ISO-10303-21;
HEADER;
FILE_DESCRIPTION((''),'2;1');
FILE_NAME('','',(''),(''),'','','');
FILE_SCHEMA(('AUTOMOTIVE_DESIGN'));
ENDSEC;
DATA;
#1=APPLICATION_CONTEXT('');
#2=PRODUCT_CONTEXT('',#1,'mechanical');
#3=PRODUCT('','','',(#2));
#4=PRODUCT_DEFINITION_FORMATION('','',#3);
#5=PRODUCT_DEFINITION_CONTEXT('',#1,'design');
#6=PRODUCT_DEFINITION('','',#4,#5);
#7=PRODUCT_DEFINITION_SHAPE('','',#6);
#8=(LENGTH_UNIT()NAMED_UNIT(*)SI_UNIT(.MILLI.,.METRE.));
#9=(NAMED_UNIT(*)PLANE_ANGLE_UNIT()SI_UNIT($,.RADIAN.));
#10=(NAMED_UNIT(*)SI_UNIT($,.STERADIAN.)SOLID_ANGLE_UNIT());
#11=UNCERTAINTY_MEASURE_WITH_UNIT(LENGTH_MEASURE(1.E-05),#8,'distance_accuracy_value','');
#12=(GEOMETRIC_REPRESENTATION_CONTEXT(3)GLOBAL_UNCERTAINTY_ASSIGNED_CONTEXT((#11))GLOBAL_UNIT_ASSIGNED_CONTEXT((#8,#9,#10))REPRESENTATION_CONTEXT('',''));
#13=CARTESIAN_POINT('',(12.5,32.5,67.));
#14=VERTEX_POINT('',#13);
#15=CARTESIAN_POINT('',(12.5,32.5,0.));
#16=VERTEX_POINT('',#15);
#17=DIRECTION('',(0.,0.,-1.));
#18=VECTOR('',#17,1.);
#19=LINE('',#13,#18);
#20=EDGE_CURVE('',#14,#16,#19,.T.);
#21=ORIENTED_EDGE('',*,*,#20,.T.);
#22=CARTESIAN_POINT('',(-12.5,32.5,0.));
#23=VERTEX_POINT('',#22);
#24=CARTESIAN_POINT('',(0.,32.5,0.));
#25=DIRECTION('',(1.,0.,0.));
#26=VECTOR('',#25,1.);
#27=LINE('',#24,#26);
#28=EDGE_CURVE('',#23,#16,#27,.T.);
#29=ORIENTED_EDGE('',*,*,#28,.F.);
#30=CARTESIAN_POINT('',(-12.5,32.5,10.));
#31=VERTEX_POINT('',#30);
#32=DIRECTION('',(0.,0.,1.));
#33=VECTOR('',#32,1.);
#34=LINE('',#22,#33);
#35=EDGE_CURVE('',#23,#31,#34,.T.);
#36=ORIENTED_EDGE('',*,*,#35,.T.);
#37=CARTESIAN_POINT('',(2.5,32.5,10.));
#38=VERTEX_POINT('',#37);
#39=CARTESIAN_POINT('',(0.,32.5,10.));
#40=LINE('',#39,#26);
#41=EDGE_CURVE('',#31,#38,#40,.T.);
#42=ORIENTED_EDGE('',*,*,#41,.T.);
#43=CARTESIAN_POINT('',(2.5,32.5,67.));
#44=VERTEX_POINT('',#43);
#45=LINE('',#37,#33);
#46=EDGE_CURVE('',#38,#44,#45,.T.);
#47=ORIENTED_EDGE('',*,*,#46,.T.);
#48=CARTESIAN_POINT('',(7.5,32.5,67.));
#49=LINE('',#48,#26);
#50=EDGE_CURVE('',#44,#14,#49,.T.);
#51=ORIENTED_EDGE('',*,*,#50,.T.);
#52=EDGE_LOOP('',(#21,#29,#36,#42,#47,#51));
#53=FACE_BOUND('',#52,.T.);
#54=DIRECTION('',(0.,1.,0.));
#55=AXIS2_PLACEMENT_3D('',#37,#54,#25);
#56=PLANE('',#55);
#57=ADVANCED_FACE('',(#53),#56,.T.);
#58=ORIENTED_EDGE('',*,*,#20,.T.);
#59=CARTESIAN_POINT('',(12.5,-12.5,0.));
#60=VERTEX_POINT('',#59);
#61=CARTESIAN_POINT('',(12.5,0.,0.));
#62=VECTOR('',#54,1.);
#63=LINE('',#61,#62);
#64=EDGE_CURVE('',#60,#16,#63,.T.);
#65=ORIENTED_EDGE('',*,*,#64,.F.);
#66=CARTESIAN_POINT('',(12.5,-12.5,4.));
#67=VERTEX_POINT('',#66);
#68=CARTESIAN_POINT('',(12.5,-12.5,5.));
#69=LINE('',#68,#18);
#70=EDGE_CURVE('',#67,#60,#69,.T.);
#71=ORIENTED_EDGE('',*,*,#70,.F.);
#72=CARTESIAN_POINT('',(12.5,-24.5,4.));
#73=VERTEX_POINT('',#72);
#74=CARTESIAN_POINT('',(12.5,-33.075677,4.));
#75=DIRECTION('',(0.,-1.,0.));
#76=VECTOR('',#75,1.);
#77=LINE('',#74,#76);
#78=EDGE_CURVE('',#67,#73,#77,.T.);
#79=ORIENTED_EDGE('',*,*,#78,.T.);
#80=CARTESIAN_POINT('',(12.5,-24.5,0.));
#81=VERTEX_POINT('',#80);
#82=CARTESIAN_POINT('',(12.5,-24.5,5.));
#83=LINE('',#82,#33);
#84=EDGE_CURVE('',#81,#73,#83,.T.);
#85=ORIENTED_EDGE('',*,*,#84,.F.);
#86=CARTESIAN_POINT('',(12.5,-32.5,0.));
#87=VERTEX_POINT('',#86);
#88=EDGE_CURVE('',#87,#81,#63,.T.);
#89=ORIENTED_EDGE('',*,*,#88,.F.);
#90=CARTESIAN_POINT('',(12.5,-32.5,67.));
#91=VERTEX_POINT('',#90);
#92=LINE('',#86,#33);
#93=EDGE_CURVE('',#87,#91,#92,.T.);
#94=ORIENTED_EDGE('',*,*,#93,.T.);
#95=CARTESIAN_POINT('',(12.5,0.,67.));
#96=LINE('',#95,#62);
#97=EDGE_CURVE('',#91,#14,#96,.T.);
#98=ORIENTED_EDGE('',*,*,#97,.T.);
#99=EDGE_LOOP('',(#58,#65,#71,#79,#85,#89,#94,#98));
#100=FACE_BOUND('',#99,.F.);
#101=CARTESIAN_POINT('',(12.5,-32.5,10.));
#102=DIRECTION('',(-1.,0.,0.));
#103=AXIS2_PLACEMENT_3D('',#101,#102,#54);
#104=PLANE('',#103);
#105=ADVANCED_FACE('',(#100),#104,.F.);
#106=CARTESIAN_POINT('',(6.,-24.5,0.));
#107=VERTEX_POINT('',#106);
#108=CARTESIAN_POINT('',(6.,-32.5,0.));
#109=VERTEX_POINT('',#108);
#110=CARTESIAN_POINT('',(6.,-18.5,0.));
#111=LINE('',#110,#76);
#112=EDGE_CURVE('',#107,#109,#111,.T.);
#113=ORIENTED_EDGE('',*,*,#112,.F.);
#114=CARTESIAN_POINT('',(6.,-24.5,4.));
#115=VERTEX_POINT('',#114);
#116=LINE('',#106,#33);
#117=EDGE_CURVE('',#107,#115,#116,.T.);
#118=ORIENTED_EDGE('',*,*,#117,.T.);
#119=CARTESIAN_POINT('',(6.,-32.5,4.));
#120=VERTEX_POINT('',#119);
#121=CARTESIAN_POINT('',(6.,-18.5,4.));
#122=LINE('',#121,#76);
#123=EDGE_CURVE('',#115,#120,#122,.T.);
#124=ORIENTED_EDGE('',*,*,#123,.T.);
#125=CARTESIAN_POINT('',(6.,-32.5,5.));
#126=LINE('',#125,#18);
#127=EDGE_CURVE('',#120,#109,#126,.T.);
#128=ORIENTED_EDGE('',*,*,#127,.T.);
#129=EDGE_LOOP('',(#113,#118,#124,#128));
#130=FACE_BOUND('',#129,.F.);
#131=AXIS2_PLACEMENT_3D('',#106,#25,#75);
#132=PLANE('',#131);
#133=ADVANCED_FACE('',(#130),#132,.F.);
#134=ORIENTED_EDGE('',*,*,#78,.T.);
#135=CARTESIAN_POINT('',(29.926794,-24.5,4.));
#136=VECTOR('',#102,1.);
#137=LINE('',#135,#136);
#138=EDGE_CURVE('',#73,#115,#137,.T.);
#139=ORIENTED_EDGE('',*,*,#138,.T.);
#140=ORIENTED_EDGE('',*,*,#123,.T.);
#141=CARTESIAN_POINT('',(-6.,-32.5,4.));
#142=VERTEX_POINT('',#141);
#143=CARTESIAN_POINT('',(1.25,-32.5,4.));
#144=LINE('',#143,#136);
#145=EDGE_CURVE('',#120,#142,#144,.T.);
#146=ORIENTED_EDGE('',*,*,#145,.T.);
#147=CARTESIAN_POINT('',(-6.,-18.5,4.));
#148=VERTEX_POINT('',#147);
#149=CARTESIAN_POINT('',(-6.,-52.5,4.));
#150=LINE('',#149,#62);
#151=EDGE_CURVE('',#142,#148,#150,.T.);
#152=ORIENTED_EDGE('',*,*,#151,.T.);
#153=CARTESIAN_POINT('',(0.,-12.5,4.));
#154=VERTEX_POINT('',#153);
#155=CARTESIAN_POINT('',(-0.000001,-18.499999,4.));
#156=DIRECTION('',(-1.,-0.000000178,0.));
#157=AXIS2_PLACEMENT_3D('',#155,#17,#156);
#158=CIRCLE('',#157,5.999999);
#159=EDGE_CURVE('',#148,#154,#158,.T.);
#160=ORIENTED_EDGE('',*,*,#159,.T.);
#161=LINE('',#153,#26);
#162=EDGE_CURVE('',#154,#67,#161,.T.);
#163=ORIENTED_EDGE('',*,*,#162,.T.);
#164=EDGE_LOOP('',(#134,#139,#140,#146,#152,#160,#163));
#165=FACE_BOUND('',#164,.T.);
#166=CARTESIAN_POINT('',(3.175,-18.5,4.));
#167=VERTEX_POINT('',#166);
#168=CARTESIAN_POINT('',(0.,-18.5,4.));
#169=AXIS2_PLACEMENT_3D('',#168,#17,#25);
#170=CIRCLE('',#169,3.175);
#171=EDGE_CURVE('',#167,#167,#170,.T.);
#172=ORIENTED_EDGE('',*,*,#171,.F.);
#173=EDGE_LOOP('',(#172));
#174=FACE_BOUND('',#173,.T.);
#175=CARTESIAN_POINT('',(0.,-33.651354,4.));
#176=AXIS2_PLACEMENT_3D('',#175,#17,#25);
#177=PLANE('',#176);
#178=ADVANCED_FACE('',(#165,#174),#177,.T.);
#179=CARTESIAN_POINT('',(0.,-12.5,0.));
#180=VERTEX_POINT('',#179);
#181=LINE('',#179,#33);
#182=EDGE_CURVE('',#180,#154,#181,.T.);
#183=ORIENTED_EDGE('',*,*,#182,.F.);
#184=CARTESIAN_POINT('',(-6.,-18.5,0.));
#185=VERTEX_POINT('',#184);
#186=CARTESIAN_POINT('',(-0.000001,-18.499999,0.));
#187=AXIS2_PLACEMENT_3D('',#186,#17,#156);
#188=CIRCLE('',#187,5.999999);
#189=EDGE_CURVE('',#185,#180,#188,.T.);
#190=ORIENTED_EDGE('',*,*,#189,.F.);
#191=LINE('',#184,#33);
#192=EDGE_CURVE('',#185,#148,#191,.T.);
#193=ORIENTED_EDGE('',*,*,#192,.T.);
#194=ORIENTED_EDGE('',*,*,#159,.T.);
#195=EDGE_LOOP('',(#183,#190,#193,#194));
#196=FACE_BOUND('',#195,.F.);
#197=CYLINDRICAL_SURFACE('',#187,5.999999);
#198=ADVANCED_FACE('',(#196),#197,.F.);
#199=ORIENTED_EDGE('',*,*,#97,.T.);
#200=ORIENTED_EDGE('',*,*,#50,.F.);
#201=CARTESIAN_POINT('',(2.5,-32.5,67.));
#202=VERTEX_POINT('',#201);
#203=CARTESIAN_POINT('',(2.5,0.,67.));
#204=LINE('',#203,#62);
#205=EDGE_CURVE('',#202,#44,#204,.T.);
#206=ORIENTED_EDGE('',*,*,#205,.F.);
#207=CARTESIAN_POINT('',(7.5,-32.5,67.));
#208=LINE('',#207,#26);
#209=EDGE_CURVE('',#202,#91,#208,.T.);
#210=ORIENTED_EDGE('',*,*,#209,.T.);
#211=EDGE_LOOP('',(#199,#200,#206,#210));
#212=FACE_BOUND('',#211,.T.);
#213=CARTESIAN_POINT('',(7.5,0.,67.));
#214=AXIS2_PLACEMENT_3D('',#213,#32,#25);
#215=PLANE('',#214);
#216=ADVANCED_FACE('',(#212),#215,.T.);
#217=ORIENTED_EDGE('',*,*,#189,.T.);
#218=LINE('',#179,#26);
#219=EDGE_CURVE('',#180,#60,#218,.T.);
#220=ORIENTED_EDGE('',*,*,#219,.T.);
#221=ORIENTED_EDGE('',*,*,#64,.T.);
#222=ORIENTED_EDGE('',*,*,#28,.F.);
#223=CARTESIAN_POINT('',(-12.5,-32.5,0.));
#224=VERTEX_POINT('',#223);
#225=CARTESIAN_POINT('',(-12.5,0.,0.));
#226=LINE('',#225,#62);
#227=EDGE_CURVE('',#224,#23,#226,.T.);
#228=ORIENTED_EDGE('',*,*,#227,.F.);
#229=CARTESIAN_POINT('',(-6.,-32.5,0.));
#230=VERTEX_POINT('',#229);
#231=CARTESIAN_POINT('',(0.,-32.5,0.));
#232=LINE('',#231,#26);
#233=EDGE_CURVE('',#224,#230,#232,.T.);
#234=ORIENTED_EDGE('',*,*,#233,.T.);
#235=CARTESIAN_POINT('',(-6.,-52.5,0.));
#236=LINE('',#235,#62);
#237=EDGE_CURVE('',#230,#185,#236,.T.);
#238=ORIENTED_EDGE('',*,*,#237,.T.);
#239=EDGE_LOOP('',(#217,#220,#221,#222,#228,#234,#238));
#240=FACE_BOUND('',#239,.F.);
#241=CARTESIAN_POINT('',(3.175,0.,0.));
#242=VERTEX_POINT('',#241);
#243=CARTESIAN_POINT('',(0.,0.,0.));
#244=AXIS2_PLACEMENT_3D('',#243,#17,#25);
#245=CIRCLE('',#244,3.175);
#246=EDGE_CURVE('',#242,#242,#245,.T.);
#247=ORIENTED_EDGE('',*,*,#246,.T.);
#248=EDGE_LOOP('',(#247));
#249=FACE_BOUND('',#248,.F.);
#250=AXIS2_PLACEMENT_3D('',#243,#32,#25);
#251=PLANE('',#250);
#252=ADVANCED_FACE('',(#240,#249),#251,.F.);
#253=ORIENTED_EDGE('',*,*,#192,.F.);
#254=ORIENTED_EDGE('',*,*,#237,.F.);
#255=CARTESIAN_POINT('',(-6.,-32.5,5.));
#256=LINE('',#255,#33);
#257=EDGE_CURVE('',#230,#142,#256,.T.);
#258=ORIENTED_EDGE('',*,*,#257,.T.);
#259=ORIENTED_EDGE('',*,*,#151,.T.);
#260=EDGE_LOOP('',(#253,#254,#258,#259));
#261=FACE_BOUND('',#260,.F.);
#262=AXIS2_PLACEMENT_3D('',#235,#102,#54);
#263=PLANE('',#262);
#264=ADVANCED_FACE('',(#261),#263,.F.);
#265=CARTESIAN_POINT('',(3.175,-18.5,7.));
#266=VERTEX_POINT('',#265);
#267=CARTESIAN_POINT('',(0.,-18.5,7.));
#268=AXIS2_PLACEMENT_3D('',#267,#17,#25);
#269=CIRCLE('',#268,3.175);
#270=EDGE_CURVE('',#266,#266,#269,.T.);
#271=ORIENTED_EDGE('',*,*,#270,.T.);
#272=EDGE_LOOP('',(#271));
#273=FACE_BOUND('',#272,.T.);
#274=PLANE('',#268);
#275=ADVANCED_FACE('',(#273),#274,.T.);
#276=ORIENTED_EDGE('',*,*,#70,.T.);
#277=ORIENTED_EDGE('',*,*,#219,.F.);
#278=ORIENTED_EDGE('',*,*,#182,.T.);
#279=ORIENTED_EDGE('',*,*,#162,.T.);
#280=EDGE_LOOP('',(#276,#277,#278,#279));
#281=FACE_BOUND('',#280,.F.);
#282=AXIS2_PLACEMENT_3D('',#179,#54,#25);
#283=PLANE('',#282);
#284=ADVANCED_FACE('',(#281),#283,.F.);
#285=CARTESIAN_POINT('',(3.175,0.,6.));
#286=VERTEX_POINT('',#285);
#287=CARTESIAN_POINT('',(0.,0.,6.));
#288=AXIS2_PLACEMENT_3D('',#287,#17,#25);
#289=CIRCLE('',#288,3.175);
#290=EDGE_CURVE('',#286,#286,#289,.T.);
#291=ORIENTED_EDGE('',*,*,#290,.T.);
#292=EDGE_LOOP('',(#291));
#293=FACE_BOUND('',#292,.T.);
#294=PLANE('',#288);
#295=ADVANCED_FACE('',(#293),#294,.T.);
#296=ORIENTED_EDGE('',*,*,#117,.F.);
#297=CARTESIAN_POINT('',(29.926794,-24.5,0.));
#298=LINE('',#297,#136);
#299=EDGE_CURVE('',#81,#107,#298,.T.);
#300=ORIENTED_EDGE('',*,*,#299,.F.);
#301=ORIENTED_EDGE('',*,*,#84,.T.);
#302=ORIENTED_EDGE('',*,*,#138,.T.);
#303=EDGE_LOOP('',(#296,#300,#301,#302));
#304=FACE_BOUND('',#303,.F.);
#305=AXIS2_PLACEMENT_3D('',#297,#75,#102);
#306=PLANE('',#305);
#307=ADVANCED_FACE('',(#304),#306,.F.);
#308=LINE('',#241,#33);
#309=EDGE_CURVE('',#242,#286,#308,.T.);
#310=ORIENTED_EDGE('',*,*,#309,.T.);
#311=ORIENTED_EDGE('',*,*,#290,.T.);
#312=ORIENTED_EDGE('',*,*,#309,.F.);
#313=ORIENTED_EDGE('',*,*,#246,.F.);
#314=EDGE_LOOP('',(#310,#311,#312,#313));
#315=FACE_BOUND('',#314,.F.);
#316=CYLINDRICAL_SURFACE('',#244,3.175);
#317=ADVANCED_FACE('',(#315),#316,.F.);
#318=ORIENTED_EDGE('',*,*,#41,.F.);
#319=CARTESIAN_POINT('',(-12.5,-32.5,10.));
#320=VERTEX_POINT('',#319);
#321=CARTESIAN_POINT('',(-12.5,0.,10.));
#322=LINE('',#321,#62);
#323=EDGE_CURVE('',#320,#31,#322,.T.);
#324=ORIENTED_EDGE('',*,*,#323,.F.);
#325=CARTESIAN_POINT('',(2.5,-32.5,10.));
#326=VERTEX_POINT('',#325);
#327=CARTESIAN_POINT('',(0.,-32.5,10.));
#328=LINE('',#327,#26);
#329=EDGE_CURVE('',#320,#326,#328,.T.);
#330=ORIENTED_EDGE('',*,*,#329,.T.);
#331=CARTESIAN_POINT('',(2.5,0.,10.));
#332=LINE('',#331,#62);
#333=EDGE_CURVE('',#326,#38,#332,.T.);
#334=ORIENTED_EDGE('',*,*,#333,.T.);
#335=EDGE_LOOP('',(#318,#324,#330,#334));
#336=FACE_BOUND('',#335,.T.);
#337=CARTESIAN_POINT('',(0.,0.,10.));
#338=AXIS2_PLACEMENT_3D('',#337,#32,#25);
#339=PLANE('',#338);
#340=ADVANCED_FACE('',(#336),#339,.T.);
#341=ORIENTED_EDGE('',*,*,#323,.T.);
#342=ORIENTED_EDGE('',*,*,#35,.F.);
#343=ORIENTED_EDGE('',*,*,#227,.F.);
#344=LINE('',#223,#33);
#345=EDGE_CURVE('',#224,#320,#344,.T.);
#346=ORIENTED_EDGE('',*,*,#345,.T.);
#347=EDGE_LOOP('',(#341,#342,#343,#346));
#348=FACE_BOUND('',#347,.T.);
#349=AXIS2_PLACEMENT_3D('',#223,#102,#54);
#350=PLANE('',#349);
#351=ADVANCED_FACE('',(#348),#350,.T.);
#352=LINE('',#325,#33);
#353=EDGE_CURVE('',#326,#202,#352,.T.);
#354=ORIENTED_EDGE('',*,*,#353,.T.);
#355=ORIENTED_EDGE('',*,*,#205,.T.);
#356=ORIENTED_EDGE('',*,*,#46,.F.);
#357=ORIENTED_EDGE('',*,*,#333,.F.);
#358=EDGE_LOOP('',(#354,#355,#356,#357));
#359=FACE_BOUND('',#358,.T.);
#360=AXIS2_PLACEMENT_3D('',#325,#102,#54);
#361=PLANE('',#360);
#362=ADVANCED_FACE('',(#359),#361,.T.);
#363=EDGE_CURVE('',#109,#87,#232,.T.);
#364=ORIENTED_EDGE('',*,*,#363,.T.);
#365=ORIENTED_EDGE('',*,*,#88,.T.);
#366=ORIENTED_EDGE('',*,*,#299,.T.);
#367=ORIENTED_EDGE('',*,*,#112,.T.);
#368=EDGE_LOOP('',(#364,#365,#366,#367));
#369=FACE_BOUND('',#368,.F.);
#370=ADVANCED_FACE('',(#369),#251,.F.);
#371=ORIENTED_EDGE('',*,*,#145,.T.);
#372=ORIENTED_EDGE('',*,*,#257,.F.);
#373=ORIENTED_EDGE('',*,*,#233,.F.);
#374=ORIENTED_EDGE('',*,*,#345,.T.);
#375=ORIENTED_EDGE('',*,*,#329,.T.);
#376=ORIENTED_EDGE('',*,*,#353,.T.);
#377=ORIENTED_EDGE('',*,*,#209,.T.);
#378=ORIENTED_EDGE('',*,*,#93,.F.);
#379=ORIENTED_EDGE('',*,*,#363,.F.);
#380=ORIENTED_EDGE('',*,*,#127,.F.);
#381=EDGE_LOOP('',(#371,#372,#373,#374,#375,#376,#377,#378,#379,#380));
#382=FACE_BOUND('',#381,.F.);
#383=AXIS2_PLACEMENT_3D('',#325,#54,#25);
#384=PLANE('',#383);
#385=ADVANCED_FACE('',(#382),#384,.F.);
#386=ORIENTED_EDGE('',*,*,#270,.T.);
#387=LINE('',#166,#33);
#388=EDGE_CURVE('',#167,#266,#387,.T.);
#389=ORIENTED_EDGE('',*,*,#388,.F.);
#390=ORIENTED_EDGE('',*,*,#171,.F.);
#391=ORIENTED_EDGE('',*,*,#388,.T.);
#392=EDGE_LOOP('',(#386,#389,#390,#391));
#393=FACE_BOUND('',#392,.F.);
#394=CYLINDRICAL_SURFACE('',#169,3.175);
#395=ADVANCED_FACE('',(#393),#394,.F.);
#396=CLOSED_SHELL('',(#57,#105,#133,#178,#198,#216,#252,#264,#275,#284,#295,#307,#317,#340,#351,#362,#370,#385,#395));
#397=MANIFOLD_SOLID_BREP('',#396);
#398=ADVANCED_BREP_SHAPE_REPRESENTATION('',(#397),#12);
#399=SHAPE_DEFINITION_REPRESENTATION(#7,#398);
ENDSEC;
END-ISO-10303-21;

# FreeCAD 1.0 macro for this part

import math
import FreeCAD as App
import Part
import Sketcher
from FreeCAD import Vector

doc = App.newDocument("Part")
body = doc.addObject("PartDesign::Body", "Body")

# Sketch on XY plane
sketch1 = body.newObject("Sketcher::SketchObject", "Sketch")
sketch1.AttachmentSupport = (doc.getObject("XY_Plane"), [""])
sketch1.MapMode = "FlatFace"
sketch1.addGeometry([
    Part.LineSegment(Vector(-12, 32, 0), Vector(-12, -32, 0)),
    Part.LineSegment(Vector(-12, -32, 0), Vector(12, -32, 0)),
    Part.LineSegment(Vector(12, -32, 0), Vector(12, 32, 0)),
    Part.LineSegment(Vector(12, 32, 0), Vector(-12, 32, 0)),
], False)
sketch1.addConstraint([
    Sketcher.Constraint("Coincident", 0, 2, 1, 1),
    Sketcher.Constraint("Coincident", 1, 2, 2, 1),
    Sketcher.Constraint("Coincident", 2, 2, 3, 1),
    Sketcher.Constraint("Coincident", 3, 2, 0, 1),
    Sketcher.Constraint("Vertical", 0),
    Sketcher.Constraint("Horizontal", 1),
    Sketcher.Constraint("Vertical", 2),
    Sketcher.Constraint("Horizontal", 3),
    Sketcher.Constraint("Symmetric", 0, 2, 2, 2, -1, 1),
    Sketcher.Constraint("DistanceX", 1, 1, 1, 2, 25.0),
    Sketcher.Constraint("DistanceY", 0, 2, 0, 1, 65.0),
])
pad1 = body.newObject("PartDesign::Pad", "Pad")
pad1.Profile = sketch1
pad1.Length = 10

# Sketch on XY plane
sketch2 = body.newObject("Sketcher::SketchObject", "Sketch001")
sketch2.AttachmentSupport = (doc.getObject("XY_Plane"), [""])
sketch2.MapMode = "FlatFace"
sketch2.AttachmentOffset = App.Placement(Vector(0, 0, 10), App.Rotation())
sketch2.addGeometry([
    Part.LineSegment(Vector(2, 32, 0), Vector(2, -32, 0)),
    Part.LineSegment(Vector(2, -32, 0), Vector(12, -32, 0)),
    Part.LineSegment(Vector(12, -32, 0), Vector(12, 32, 0)),
    Part.LineSegment(Vector(12, 32, 0), Vector(2, 32, 0)),
], False)
sketch2.addConstraint([
    Sketcher.Constraint("Coincident", 0, 2, 1, 1),
    Sketcher.Constraint("Coincident", 1, 2, 2, 1),
    Sketcher.Constraint("Coincident", 2, 2, 3, 1),
    Sketcher.Constraint("Coincident", 3, 2, 0, 1),
    Sketcher.Constraint("Vertical", 0),
    Sketcher.Constraint("Horizontal", 1),
    Sketcher.Constraint("Vertical", 2),
    Sketcher.Constraint("Horizontal", 3),
    Sketcher.Constraint("DistanceX", 1, 1, 1, 2, 10.0),
    Sketcher.Constraint("DistanceY", 0, 2, 0, 1, 65.0),
    Sketcher.Constraint("DistanceX", -1, 1, 0, 2, 2.5),
    Sketcher.Constraint("DistanceY", 0, 2, -1, 1, 32.5),
])
pad2 = body.newObject("PartDesign::Pad", "Pad001")
pad2.Profile = sketch2
pad2.Length = 57

# Sketch on XY plane
sketch3 = body.newObject("Sketcher::SketchObject", "Sketch002")
sketch3.AttachmentSupport = (doc.getObject("XY_Plane"), [""])
sketch3.MapMode = "FlatFace"
sketch3.addGeometry(Part.Circle(Vector(0, 0, 0), Vector(0, 0, 1), 3.2), False)
sketch3.addConstraint([
    Sketcher.Constraint("Coincident", 0, 3, -1, 1),
    Sketcher.Constraint("Diameter", 0, 6.35),
])
pocket1 = body.newObject("PartDesign::Pocket", "Pocket")
pocket1.Profile = sketch3
pocket1.Length = 6
pocket1.Reversed = True

# Sketch on XY plane
sketch4 = body.newObject("Sketcher::SketchObject", "Sketch003")
sketch4.AttachmentSupport = (doc.getObject("XY_Plane"), [""])
sketch4.MapMode = "FlatFace"
sketch4.addGeometry([
    Part.LineSegment(Vector(6, -52, 0), Vector(-6, -52, 0)),  # 0
    Part.LineSegment(Vector(-6, -52, 0), Vector(-6, -18, 0)),  # 1
    Part.ArcOfCircle(Part.Circle(Vector(0, -18, 0), Vector(0, 0, 1), 6), math.radians(90), math.radians(180)),  # 2
    Part.LineSegment(Vector(0, -12, 0), Vector(30, -12, 0)),  # 3
    Part.LineSegment(Vector(30, -12, 0), Vector(30, -24, 0)),  # 4
    Part.LineSegment(Vector(30, -24, 0), Vector(6, -24, 0)),  # 5
    Part.LineSegment(Vector(6, -24, 0), Vector(6, -52, 0)),  # 6
], False)
sketch4.addConstraint([
    Sketcher.Constraint("Coincident", 0, 2, 1, 1),
    Sketcher.Constraint("Tangent", 1, 2, 2, 2),
    Sketcher.Constraint("Tangent", 2, 1, 3, 1),
    Sketcher.Constraint("Coincident", 3, 2, 4, 1),
    Sketcher.Constraint("Coincident", 4, 2, 5, 1),
    Sketcher.Constraint("Coincident", 5, 2, 6, 1),
    Sketcher.Constraint("Coincident", 6, 2, 0, 1),
    Sketcher.Constraint("Horizontal", 0),
    Sketcher.Constraint("Vertical", 1),
    Sketcher.Constraint("Horizontal", 3),
    Sketcher.Constraint("Vertical", 4),
    Sketcher.Constraint("Horizontal", 5),
    Sketcher.Constraint("Vertical", 6),
    Sketcher.Constraint("PointOnObject", 2, 3, -2),
    Sketcher.Constraint("Equal", 0, 4),
    Sketcher.Constraint("Radius", 2, 5.999999),
    Sketcher.Constraint("DistanceX", 0, 2, 0, 1, 12.0),
    Sketcher.Constraint("DistanceY", 1, 1, 1, 2, 34.0),
    Sketcher.Constraint("DistanceY", 2, 3, -1, 1, 18.499999),
    Sketcher.Constraint("DistanceX", 3, 1, 3, 2, 29.926794),
])
pocket2 = body.newObject("PartDesign::Pocket", "Pocket001")
pocket2.Profile = sketch4
pocket2.Length = 4
pocket2.Reversed = True

# Sketch on XY plane
sketch5 = body.newObject("Sketcher::SketchObject", "Sketch004")
sketch5.AttachmentSupport = (doc.getObject("XY_Plane"), [""])
sketch5.MapMode = "FlatFace"
sketch5.AttachmentOffset = App.Placement(Vector(0, 0, 4), App.Rotation())
sketch5.addGeometry(Part.Circle(Vector(0, -18.5, 0), Vector(0, 0, 1), 3.2), False)
sketch5.addConstraint([
    Sketcher.Constraint("PointOnObject", 0, 3, -2),
    Sketcher.Constraint("Diameter", 0, 6.35),
    Sketcher.Constraint("DistanceY", 0, 3, -1, 1, 18.5),
])
pocket3 = body.newObject("PartDesign::Pocket", "Pocket002")
pocket3.Profile = sketch5
pocket3.Length = 3
pocket3.Reversed = True

doc.recompute()
